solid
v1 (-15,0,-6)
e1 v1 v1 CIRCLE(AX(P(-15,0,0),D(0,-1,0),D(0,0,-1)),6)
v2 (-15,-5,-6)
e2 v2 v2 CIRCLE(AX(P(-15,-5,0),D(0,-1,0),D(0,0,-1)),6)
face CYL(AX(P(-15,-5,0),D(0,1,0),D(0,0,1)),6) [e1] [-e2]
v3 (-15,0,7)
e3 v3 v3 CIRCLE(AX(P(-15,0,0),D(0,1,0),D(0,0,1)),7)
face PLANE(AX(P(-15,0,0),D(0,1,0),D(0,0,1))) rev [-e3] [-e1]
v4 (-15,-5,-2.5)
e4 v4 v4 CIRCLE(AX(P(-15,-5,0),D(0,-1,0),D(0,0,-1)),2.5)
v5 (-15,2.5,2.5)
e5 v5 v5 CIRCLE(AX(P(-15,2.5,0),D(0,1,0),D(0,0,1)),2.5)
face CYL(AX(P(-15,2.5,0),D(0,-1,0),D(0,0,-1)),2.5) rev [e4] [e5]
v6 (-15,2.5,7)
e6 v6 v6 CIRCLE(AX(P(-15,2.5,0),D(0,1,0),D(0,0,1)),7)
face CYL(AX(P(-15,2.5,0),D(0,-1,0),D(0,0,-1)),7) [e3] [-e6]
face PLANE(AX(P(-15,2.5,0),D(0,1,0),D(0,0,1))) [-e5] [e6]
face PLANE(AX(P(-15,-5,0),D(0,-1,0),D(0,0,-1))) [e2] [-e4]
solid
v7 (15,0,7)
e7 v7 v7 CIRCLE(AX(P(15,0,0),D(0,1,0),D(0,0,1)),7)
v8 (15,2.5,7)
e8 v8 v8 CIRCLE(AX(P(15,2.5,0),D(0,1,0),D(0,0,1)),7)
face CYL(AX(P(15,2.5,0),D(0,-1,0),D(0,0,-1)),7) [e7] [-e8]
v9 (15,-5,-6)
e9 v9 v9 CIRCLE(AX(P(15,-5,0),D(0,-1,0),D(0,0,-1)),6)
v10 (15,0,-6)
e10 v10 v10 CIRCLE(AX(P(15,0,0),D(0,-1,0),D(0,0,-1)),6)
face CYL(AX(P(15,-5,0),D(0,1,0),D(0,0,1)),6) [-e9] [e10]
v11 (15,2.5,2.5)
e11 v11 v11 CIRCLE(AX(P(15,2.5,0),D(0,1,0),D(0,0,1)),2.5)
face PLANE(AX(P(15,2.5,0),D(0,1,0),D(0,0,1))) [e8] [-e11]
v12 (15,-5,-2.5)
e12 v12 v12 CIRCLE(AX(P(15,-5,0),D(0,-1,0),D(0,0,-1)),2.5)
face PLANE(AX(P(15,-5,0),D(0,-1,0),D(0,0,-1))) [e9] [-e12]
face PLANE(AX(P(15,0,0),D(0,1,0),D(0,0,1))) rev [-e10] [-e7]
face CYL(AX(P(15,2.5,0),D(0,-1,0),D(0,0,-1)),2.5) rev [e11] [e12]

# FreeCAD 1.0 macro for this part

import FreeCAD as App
import Part
import Sketcher
from FreeCAD import Vector

doc = App.newDocument("Part")
body = doc.addObject("PartDesign::Body", "Body")

# Sketch on XZ plane
sketch1 = doc.addObject("Sketcher::SketchObject", "Sketch")
body.addObject(sketch1)
sketch1.AttachmentSupport = (doc.XZ_Plane, [""])
sketch1.MapMode = "FlatFace"
sketch1.addGeometry([
    Part.Circle(Vector(-15, 0, 0), Vector(0, 0, 1), 7),
    Part.Circle(Vector(-15, 0, 0), Vector(0, 0, 1), 2.5),
], False)
sketch1.addConstraint([
    Sketcher.Constraint("Coincident", 1, 3, 0, 3),
    Sketcher.Constraint("PointOnObject", 0, 3, -1),
    Sketcher.Constraint("Diameter", 0, 14.0),
    Sketcher.Constraint("Diameter", 1, 5.0),
    Sketcher.Constraint("DistanceX", 0, 3, -1, 1, 15.0),
])
pad1 = doc.addObject("PartDesign::Pad", "Pad")
body.addObject(pad1)
pad1.Profile = sketch1
pad1.Length = 2.5
pad1.Reversed = True
body2 = doc.addObject("PartDesign::Body", "Body001")

# Sketch on XZ plane
sketch2 = doc.addObject("Sketcher::SketchObject", "Sketch001")
body2.addObject(sketch2)
sketch2.AttachmentSupport = (doc.getObject("XZ_Plane001"), [""])
sketch2.MapMode = "FlatFace"
sketch2.addGeometry([
    Part.Circle(Vector(15, 0, 0), Vector(0, 0, 1), 7),
    Part.Circle(Vector(15, 0, 0), Vector(0, 0, 1), 2.5),
], False)
sketch2.addConstraint([
    Sketcher.Constraint("Coincident", 1, 3, 0, 3),
    Sketcher.Constraint("PointOnObject", 0, 3, -1),
    Sketcher.Constraint("Diameter", 0, 14.0),
    Sketcher.Constraint("Diameter", 1, 5.0),
    Sketcher.Constraint("DistanceX", -1, 1, 0, 3, 15.0),
])
pad2 = doc.addObject("PartDesign::Pad", "Pad001")
body2.addObject(pad2)
pad2.Profile = sketch2
pad2.Length = 2.5
pad2.Reversed = True
body.AllowCompound = True
doc.recompute()

boolean = doc.addObject("PartDesign::Boolean", "Boolean")
body.addObject(boolean)
boolean.Type = "Fuse"
boolean.addObjects([body2])

# Sketch on XZ plane
sketch3 = doc.addObject("Sketcher::SketchObject", "Sketch002")
body.addObject(sketch3)
sketch3.AttachmentSupport = (doc.XZ_Plane, [""])
sketch3.MapMode = "FlatFace"
sketch3.AttachmentOffset = App.Placement(Vector(0, 0, 5), App.Rotation())
sketch3.addGeometry([
    Part.Circle(Vector(15, 0, 0), Vector(0, 0, 1), 6),
    Part.Circle(Vector(15, 0, 0), Vector(0, 0, 1), 2.5),
    Part.Circle(Vector(-15, 0, 0), Vector(0, 0, 1), 6),
    Part.Circle(Vector(-15, 0, 0), Vector(0, 0, 1), 2.5),
], False)
sketch3.addConstraint([
    Sketcher.Constraint("Coincident", 1, 3, 0, 3),
    Sketcher.Constraint("Coincident", 3, 3, 2, 3),
    Sketcher.Constraint("Equal", 0, 2),
    Sketcher.Constraint("Equal", 1, 3),
    Sketcher.Constraint("Symmetric", 0, 3, 2, 3, -1, 1),
    Sketcher.Constraint("PointOnObject", 0, 3, -1),
    Sketcher.Constraint("Diameter", 0, 12.0),
    Sketcher.Constraint("Diameter", 1, 5.0),
    Sketcher.Constraint("DistanceX", -1, 1, 0, 3, 15.0),
])
pad3 = doc.addObject("PartDesign::Pad", "Pad002")
body.addObject(pad3)
pad3.Profile = sketch3
pad3.Length = 5
pad3.Reversed = True

doc.recompute()
